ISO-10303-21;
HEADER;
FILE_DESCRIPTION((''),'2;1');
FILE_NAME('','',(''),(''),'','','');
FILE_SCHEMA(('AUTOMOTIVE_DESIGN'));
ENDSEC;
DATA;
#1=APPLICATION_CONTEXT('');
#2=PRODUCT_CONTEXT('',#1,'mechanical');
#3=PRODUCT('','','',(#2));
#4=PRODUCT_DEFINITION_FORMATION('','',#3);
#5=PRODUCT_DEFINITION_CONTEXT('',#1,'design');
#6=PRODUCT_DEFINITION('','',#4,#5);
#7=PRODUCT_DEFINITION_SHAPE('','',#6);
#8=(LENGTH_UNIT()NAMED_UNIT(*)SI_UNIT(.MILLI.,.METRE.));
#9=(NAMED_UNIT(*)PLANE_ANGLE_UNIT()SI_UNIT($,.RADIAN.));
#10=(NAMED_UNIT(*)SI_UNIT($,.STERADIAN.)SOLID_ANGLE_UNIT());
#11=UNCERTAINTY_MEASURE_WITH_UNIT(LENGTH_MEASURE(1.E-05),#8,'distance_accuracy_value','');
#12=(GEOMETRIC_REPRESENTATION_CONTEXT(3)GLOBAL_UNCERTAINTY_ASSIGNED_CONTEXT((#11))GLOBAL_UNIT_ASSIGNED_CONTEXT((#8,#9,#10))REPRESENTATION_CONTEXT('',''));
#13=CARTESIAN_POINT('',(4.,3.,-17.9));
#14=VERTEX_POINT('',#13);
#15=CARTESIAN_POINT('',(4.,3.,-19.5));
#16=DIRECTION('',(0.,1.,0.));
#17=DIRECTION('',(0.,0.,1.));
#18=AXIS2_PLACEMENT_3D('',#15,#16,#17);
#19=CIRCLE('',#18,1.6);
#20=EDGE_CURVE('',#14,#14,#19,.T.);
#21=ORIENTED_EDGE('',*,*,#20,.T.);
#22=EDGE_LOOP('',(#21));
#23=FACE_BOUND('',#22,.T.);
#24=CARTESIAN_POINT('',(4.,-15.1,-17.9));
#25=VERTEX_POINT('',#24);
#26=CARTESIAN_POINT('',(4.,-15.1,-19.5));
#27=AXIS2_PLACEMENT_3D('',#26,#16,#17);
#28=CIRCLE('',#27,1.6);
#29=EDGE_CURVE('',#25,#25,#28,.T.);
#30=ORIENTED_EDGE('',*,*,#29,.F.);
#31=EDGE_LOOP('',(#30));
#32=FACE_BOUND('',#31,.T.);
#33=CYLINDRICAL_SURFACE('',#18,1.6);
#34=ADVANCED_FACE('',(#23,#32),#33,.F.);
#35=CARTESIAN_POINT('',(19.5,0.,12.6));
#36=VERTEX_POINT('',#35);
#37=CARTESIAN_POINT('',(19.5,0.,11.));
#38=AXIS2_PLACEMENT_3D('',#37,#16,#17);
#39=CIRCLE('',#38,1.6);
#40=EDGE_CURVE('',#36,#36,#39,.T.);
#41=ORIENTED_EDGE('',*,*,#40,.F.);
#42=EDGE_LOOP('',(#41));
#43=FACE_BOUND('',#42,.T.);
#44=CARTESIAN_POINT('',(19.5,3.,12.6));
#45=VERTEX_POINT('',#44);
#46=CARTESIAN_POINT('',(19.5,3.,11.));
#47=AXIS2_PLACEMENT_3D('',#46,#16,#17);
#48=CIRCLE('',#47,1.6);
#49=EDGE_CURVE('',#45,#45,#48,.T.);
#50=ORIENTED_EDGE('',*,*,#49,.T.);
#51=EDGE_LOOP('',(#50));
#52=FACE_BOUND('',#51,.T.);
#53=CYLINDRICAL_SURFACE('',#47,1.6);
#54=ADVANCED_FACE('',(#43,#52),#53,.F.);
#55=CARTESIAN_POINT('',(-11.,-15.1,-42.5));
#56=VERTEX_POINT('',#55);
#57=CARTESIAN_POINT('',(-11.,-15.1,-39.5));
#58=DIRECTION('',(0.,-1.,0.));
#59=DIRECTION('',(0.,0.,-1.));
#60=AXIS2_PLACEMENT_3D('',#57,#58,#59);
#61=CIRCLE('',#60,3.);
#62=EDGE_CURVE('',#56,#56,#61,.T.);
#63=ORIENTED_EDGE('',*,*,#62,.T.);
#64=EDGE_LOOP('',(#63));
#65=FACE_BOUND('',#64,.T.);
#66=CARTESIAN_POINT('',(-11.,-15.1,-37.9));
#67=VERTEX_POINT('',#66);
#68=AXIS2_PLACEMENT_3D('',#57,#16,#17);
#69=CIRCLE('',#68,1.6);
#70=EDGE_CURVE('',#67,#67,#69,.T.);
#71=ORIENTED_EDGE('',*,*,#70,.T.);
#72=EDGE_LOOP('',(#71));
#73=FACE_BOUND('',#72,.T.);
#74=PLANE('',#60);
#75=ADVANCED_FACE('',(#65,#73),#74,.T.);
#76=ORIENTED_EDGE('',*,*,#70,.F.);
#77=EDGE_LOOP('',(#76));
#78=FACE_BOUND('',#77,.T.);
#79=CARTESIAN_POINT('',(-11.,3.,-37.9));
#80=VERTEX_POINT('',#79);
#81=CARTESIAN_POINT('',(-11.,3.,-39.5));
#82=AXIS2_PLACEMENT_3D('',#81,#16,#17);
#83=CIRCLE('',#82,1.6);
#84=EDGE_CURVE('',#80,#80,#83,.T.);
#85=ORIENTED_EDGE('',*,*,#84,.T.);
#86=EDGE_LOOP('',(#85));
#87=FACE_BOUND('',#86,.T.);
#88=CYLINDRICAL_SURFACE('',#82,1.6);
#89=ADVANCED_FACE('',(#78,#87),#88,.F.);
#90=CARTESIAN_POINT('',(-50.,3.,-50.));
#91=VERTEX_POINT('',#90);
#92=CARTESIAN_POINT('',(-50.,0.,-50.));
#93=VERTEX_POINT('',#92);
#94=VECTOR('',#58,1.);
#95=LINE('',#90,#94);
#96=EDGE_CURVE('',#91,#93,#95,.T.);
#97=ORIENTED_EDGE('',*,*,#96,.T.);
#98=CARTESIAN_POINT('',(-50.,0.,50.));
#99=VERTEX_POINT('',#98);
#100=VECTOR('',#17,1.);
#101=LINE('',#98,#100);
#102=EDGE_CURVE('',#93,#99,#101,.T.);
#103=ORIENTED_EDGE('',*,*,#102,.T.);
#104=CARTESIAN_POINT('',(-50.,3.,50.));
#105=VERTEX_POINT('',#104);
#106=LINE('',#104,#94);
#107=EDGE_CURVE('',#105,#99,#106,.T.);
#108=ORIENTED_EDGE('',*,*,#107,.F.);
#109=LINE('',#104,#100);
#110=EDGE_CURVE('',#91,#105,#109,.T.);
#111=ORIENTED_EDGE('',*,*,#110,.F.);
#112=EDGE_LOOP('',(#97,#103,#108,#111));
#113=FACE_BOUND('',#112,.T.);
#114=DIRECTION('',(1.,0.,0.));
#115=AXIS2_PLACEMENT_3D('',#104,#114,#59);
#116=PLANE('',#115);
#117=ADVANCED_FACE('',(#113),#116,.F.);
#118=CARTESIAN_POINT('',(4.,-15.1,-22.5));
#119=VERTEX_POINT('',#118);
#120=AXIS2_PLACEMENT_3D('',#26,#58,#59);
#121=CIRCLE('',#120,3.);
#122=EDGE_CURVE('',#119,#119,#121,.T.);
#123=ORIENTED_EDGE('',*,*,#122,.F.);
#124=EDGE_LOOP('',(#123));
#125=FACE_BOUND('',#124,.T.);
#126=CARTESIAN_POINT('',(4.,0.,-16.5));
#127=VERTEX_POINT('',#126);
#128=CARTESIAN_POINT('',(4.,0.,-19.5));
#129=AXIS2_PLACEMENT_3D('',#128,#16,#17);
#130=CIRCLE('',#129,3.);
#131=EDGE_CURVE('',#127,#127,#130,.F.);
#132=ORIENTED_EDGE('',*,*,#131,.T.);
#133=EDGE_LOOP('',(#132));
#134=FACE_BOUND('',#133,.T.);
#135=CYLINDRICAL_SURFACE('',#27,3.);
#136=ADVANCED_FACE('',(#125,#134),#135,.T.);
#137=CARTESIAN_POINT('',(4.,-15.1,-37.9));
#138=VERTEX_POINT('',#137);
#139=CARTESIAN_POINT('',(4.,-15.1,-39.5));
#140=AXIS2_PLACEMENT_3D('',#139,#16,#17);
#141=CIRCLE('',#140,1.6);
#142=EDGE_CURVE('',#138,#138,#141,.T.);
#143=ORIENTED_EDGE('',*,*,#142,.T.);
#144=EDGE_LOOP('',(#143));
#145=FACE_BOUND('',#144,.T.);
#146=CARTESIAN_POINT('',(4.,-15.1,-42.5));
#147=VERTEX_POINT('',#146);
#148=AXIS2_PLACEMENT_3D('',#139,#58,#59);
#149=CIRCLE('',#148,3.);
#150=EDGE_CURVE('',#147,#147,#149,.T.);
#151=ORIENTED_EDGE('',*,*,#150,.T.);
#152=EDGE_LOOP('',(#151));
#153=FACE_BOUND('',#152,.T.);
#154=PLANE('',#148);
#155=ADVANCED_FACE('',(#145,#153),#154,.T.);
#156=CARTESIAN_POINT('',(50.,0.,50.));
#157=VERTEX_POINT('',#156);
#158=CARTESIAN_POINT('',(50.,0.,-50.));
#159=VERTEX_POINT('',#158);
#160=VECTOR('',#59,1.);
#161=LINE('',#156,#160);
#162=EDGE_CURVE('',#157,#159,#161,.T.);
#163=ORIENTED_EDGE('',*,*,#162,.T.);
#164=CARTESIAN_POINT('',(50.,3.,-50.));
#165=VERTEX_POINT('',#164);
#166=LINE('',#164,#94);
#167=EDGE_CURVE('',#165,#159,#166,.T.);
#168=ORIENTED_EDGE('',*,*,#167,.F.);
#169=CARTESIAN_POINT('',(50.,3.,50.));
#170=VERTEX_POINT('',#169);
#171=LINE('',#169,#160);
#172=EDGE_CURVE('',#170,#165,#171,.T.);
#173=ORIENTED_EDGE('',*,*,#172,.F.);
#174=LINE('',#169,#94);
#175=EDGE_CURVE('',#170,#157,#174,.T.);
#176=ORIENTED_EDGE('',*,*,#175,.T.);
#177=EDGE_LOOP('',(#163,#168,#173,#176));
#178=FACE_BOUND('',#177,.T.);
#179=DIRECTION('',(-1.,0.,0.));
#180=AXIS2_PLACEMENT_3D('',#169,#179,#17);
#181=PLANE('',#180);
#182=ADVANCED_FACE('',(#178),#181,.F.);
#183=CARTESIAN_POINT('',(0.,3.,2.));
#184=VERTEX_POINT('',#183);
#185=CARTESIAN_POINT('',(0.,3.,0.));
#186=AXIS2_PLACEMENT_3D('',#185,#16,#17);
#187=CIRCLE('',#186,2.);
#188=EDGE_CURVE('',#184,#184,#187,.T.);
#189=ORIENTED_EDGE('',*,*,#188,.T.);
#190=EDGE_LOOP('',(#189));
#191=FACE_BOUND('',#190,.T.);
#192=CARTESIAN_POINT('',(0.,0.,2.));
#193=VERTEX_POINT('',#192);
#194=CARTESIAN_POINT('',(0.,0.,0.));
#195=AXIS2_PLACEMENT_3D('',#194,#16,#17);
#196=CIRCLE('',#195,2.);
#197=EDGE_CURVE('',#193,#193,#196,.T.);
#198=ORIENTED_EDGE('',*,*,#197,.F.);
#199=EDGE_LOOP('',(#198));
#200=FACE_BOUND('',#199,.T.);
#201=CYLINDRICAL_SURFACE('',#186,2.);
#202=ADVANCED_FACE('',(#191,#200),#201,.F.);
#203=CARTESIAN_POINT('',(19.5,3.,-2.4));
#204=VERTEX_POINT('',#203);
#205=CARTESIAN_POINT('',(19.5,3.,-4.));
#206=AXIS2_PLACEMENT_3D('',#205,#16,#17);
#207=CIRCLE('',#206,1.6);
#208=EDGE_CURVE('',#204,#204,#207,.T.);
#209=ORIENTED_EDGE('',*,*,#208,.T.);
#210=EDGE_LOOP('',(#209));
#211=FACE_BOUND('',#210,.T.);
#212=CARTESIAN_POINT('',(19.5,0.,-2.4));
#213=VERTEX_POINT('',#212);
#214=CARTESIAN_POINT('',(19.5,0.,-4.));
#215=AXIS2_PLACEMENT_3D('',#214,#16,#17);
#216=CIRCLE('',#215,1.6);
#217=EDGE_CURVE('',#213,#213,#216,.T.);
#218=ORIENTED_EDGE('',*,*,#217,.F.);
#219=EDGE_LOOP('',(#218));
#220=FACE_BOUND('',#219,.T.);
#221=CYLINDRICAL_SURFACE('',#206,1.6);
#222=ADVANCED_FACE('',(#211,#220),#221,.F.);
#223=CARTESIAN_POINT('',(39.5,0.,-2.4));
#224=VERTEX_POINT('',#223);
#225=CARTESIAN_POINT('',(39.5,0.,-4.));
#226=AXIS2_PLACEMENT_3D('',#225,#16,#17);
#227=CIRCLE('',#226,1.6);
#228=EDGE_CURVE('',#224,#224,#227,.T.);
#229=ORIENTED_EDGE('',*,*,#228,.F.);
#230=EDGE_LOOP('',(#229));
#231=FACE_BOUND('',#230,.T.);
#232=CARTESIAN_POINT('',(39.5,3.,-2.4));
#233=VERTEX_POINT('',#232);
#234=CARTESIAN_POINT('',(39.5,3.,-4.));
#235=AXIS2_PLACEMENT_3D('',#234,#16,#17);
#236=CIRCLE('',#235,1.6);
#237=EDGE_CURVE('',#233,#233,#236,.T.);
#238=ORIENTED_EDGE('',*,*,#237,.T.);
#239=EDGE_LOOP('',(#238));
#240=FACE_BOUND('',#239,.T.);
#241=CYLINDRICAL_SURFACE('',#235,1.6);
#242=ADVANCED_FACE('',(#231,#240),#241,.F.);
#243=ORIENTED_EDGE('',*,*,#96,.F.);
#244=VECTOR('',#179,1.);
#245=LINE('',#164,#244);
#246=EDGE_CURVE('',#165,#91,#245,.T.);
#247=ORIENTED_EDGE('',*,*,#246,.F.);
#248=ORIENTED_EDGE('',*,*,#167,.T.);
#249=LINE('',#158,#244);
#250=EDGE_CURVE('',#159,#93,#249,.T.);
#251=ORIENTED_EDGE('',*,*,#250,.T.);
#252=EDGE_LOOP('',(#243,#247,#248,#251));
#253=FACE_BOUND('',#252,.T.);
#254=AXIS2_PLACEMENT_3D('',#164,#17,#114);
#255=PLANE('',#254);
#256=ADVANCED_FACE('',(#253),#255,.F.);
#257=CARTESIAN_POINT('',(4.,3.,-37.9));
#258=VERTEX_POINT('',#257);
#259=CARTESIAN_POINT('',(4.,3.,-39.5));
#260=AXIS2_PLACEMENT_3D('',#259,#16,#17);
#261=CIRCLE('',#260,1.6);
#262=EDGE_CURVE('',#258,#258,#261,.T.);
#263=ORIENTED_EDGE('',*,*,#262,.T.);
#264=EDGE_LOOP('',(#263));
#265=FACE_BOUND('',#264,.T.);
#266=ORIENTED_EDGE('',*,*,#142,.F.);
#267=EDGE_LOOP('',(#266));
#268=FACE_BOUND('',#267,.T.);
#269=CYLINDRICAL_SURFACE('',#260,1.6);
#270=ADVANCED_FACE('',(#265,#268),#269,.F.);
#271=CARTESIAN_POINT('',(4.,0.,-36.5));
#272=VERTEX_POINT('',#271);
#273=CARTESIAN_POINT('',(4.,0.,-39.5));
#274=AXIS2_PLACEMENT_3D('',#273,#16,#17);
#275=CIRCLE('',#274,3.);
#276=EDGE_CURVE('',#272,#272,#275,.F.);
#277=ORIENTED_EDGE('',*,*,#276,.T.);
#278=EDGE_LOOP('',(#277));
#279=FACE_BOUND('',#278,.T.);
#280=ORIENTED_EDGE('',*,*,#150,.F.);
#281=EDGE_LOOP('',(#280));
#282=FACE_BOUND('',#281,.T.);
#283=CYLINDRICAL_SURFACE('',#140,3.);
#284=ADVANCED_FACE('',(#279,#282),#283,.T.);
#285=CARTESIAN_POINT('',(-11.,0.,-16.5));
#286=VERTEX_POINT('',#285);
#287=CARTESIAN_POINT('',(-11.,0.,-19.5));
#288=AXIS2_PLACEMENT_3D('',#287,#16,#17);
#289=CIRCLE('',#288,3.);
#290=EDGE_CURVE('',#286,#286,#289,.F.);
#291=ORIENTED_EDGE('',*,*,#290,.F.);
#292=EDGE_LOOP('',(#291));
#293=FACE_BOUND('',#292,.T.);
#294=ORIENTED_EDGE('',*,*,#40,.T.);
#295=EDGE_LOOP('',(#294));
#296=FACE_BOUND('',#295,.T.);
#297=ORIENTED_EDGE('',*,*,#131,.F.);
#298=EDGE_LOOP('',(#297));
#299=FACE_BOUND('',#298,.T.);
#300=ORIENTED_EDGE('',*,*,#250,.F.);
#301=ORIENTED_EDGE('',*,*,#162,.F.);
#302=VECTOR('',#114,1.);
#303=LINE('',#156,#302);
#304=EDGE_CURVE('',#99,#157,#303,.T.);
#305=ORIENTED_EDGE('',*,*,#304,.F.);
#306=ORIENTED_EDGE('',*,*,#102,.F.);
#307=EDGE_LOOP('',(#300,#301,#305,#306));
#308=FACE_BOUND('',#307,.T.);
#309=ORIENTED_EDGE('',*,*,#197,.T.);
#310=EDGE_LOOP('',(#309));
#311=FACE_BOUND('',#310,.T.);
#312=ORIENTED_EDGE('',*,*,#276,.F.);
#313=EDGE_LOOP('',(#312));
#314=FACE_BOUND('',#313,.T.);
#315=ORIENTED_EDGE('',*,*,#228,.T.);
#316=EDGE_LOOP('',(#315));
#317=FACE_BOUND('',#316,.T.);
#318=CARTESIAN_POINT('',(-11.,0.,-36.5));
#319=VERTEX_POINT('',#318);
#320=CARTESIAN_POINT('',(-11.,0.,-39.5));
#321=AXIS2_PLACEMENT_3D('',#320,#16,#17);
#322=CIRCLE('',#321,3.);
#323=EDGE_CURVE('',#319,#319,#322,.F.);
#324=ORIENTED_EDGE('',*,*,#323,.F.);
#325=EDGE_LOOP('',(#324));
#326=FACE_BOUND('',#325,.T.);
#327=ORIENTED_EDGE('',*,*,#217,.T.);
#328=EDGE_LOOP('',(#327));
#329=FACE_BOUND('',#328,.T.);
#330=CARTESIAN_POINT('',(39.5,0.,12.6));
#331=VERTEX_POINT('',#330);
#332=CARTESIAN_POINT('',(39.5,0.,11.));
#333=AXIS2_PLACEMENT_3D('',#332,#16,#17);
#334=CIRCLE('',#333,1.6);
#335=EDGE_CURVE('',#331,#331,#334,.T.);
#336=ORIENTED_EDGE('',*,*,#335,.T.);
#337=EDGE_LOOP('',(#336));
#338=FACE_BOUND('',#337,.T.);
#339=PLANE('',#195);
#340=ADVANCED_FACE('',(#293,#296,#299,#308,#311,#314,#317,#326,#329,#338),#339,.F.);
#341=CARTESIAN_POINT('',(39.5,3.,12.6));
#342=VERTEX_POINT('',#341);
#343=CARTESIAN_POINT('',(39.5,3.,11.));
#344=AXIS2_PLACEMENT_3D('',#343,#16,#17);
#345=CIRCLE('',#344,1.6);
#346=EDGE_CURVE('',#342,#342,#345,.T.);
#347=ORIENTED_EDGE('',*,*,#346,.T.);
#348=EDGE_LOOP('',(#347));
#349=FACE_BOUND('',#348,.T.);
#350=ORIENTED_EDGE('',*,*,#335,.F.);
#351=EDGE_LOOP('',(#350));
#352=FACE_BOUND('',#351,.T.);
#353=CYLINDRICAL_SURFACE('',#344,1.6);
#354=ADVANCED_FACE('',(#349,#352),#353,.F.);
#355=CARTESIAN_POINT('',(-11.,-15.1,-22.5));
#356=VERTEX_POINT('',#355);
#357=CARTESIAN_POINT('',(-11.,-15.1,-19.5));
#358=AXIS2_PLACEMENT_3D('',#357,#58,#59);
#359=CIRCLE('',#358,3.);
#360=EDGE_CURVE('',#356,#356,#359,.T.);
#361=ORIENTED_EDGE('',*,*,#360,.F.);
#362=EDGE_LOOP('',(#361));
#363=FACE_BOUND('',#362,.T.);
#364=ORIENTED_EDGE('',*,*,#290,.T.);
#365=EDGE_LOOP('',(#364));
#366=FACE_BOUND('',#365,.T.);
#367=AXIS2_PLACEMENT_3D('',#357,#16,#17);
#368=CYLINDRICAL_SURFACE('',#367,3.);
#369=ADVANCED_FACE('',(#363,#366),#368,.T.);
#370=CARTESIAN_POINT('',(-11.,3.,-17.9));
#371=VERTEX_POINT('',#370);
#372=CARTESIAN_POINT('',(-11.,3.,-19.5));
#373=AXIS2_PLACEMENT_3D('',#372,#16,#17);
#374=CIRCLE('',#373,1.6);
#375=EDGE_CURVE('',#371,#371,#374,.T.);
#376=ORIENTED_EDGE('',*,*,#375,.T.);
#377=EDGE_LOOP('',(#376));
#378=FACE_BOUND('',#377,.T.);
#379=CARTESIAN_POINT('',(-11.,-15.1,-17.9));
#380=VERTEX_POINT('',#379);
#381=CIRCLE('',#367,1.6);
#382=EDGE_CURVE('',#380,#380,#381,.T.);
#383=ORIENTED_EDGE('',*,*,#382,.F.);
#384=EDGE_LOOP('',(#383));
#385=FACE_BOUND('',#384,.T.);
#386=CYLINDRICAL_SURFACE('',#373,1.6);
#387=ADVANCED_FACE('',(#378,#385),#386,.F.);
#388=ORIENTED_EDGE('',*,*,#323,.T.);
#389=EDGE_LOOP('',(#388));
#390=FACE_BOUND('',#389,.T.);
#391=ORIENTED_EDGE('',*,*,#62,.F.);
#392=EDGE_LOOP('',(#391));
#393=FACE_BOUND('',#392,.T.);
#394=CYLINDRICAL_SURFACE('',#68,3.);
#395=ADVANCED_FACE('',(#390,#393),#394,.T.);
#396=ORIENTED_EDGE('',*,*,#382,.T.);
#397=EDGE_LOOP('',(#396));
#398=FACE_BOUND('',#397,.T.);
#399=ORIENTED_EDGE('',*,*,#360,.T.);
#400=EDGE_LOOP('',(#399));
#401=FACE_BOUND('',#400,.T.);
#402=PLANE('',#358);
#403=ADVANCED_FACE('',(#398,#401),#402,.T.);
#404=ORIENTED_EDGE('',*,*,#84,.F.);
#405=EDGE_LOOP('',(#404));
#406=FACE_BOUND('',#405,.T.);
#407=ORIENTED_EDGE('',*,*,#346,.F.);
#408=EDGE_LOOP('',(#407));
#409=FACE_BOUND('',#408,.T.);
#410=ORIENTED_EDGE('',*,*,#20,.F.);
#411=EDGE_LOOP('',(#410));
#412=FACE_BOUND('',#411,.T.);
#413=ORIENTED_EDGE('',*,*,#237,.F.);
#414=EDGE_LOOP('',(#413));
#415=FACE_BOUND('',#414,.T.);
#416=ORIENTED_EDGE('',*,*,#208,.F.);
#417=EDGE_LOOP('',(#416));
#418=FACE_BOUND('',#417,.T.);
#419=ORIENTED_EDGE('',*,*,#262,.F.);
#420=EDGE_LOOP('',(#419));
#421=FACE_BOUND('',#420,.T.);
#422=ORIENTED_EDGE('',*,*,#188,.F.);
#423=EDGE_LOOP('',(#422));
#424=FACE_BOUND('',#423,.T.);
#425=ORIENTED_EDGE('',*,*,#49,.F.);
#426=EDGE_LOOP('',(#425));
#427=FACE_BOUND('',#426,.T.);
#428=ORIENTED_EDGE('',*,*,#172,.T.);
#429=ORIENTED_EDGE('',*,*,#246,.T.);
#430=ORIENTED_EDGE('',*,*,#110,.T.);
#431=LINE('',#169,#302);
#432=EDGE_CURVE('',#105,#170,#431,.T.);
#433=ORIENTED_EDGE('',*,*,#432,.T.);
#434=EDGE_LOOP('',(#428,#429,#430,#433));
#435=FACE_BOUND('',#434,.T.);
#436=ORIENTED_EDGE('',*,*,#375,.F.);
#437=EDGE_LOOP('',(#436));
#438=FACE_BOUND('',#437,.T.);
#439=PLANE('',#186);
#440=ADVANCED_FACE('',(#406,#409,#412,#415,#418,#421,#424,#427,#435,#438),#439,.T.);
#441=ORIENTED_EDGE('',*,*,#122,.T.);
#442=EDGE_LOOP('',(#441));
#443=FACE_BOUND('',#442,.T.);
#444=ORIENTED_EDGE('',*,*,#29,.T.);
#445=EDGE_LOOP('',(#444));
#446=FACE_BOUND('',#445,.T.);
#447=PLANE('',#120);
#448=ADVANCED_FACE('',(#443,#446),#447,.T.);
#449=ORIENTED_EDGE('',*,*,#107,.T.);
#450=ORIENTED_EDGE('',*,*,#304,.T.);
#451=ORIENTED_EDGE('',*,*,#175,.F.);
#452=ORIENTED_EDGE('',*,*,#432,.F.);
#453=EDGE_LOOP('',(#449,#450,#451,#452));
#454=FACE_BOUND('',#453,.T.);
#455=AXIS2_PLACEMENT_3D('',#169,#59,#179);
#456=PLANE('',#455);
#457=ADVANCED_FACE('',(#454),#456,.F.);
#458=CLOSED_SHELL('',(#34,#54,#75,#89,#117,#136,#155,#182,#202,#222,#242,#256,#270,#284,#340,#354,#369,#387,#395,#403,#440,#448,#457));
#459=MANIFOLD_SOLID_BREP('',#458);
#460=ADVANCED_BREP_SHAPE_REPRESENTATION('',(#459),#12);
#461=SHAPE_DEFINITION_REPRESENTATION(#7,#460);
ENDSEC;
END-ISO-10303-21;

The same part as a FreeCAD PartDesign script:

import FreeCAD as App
import Part
import Sketcher
Q = App.Units.Quantity


def add_polygon(sketch, points):
    """Adds a closed chain of lines whose ends are joined by coincident constraints."""
    first, n = sketch.GeometryCount, len(points)
    for a, b in zip(points, points[1:] + points[:1]):
        sketch.addGeometry(Part.LineSegment(App.Vector(*a, 0), App.Vector(*b, 0)), False)
    for i in range(n):
        sketch.addConstraint(Sketcher.Constraint("Coincident", first + i, 2, first + (i + 1) % n, 1))

doc = App.newDocument("Part")
body = doc.addObject("PartDesign::Body", "Body")

# Sketch on XZ plane
sketch1 = body.newObject("Sketcher::SketchObject", "Sketch")
sketch1.AttachmentSupport = (doc.getObject("XZ_Plane"), [""])
sketch1.MapMode = "FlatFace"
add_polygon(sketch1, [(-50, -50), (-50, 50), (50, 50), (50, -50)])  # lines 0-3
sketch1.addConstraint([
    Sketcher.Constraint("Vertical", 0),
    Sketcher.Constraint("Horizontal", 1),
    Sketcher.Constraint("Vertical", 2),
    Sketcher.Constraint("Horizontal", 3),
    Sketcher.Constraint("Symmetric", 0, 2, 2, 2, -1, 1),
    Sketcher.Constraint("Equal", 3, 0),
    Sketcher.Constraint("DistanceX", 1, 1, 1, 2, Q("100 mm")),
])
pad1 = body.newObject("PartDesign::Pad", "Pad")
pad1.Profile = sketch1
pad1.Length = 3
pad1.Reversed = True

# Sketch on XZ plane
sketch2 = body.newObject("Sketcher::SketchObject", "Sketch001")
sketch2.AttachmentSupport = (doc.getObject("XZ_Plane"), [""])
sketch2.MapMode = "FlatFace"
sketch2.addGeometry([
    Part.Circle(App.Vector(-11, -19.5, 0), App.Vector(0, 0, 1), 3),
    Part.Circle(App.Vector(4, -19.5, 0), App.Vector(0, 0, 1), 3),
    Part.Circle(App.Vector(4, -39.5, 0), App.Vector(0, 0, 1), 3),
    Part.Circle(App.Vector(-11, -39.5, 0), App.Vector(0, 0, 1), 3),
], False)
sketch2.addConstraint([
    Sketcher.Constraint("Equal", 0, 1),
    Sketcher.Constraint("Equal", 1, 2),
    Sketcher.Constraint("Equal", 2, 3),
    Sketcher.Constraint("Horizontal", 0, 3, 1, 3),
    Sketcher.Constraint("Horizontal", 2, 3, 3, 3),
    Sketcher.Constraint("Vertical", 1, 3, 2, 3),
    Sketcher.Constraint("Vertical", 0, 3, 3, 3),
    Sketcher.Constraint("Diameter", 0, Q("6 mm")),
    Sketcher.Constraint("DistanceX", 0, 3, -1, 1, Q("11 mm")),
    Sketcher.Constraint("DistanceX", -1, 1, 1, 3, Q("4 mm")),
    Sketcher.Constraint("DistanceY", 2, 3, 1, 3, Q("20 mm")),
    Sketcher.Constraint("DistanceY", 0, 3, -1, 1, Q("19.5 mm")),
])
pad2 = body.newObject("PartDesign::Pad", "Pad001")
pad2.Profile = sketch2
pad2.Length = 15.1

# Sketch on XZ plane
sketch3 = body.newObject("Sketcher::SketchObject", "Sketch002")
sketch3.AttachmentSupport = (doc.getObject("XZ_Plane"), [""])
sketch3.MapMode = "FlatFace"
sketch3.AttachmentOffset = App.Placement(App.Vector(0, 0, -3), App.Rotation())
sketch3.addGeometry([
    Part.Circle(App.Vector(-11, -39.5, 0), App.Vector(0, 0, 1), 1.6),  # 0
    Part.Circle(App.Vector(4, -39.5, 0), App.Vector(0, 0, 1), 1.6),  # 1
    Part.Circle(App.Vector(4, -19.5, 0), App.Vector(0, 0, 1), 1.6),  # 2
    Part.Circle(App.Vector(-11, -19.5, 0), App.Vector(0, 0, 1), 1.6),  # 3
    Part.Circle(App.Vector(19.5, -4, 0), App.Vector(0, 0, 1), 1.6),  # 4
    Part.Circle(App.Vector(39.5, -4, 0), App.Vector(0, 0, 1), 1.6),  # 5
    Part.Circle(App.Vector(39.5, 11, 0), App.Vector(0, 0, 1), 1.6),  # 6
    Part.Circle(App.Vector(19.5, 11, 0), App.Vector(0, 0, 1), 1.6),  # 7
], False)
sketch3.addConstraint([
    Sketcher.Constraint("Equal", 0, 1),
    Sketcher.Constraint("Equal", 1, 2),
    Sketcher.Constraint("Equal", 2, 3),
    Sketcher.Constraint("Equal", 3, 4),
    Sketcher.Constraint("Equal", 4, 5),
    Sketcher.Constraint("Equal", 5, 6),
    Sketcher.Constraint("Equal", 6, 7),
    Sketcher.Constraint("Horizontal", 0, 3, 1, 3),
    Sketcher.Constraint("Horizontal", 2, 3, 3, 3),
    Sketcher.Constraint("Horizontal", 4, 3, 5, 3),
    Sketcher.Constraint("Horizontal", 6, 3, 7, 3),
    Sketcher.Constraint("Vertical", 1, 3, 2, 3),
    Sketcher.Constraint("Vertical", 0, 3, 3, 3),
    Sketcher.Constraint("Vertical", 5, 3, 6, 3),
    Sketcher.Constraint("Vertical", 4, 3, 7, 3),
    Sketcher.Constraint("Diameter", 0, Q("3.2 mm")),
    Sketcher.Constraint("DistanceX", 0, 3, -1, 1, Q("11 mm")),
    Sketcher.Constraint("DistanceX", -1, 1, 1, 3, Q("4 mm")),
    Sketcher.Constraint("DistanceY", 4, 3, -1, 1, Q("4 mm")),
    Sketcher.Constraint("DistanceY", -1, 1, 6, 3, Q("11 mm")),
    Sketcher.Constraint("DistanceY", 1, 3, 2, 3, Q("20 mm")),
    Sketcher.Constraint("DistanceX", 4, 3, 5, 3, Q("20 mm")),
    Sketcher.Constraint("DistanceY", 0, 3, -1, 1, Q("39.5 mm")),
    Sketcher.Constraint("DistanceX", -1, 1, 4, 3, Q("19.5 mm")),
])
doc.recompute()
hole = body.newObject("PartDesign::Hole", "Hole")
hole.Profile = sketch3
hole.ThreadType = "None"
hole.Diameter = 3.2
hole.DepthType = "ThroughAll"
hole.Reversed = True

# Sketch on XZ plane
sketch4 = body.newObject("Sketcher::SketchObject", "Sketch003")
sketch4.AttachmentSupport = (doc.getObject("XZ_Plane"), [""])
sketch4.MapMode = "FlatFace"
sketch4.AttachmentOffset = App.Placement(App.Vector(0, 0, -3), App.Rotation())
sketch4.addGeometry(Part.Circle(App.Vector(0, 0, 0), App.Vector(0, 0, 1), 2), False)
sketch4.addConstraint([
    Sketcher.Constraint("Coincident", 0, 3, -1, 1),
    Sketcher.Constraint("Diameter", 0, Q("4 mm")),
])
doc.recompute()
hole2 = body.newObject("PartDesign::Hole", "Hole001")
hole2.Profile = sketch4
hole2.ThreadType = "None"
hole2.Diameter = 4
hole2.DepthType = "ThroughAll"
hole2.Reversed = True

doc.recompute()
